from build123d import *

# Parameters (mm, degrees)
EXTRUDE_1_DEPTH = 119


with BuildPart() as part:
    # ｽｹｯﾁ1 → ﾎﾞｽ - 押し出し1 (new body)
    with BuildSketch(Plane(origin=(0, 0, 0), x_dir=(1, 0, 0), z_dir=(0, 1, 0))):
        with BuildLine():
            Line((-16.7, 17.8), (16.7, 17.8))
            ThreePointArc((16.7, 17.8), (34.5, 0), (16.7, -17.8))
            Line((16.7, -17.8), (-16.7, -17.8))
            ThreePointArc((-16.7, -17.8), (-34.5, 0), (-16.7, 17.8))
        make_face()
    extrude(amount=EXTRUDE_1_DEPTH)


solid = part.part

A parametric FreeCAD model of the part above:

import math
import FreeCAD as App
import Part
import Sketcher

V = App.Vector
Q = App.Units.Quantity

doc = App.newDocument("Part")
body = doc.addObject("PartDesign::Body", "Body")

# Sketch on XZ plane
sketch1 = body.newObject("Sketcher::SketchObject", "Sketch")
sketch1.AttachmentSupport = (doc.getObject("XZ_Plane"), [""])
sketch1.MapMode = "FlatFace"
sketch1.addGeometry([
    Part.LineSegment(V(17, -18, 0), V(-17, -18, 0)),
    Part.ArcOfCircle(Part.Circle(V(-17, 0, 0), V(0, 0, 1), 18), math.radians(90), math.radians(270)),
    Part.LineSegment(V(-17, 18, 0), V(17, 18, 0)),
    Part.ArcOfCircle(Part.Circle(V(17, 0, 0), V(0, 0, 1), 18), math.radians(-90), math.radians(90)),
], False)
sketch1.addConstraint([
    Sketcher.Constraint("Tangent", 0, 2, 1, 2),
    Sketcher.Constraint("Tangent", 1, 1, 2, 1),
    Sketcher.Constraint("Tangent", 2, 2, 3, 2),
    Sketcher.Constraint("Tangent", 3, 1, 0, 1),
    Sketcher.Constraint("Horizontal", 0),
    Sketcher.Constraint("Horizontal", 2),
    Sketcher.Constraint("Symmetric", 1, 3, 3, 3, -1, 1),
    Sketcher.Constraint("Radius", 1, Q("17.8 mm")),
    Sketcher.Constraint("DistanceX", 0, 2, 0, 1, Q("33.4 mm")),
])
pad1 = body.newObject("PartDesign::Pad", "Pad")
pad1.Profile = sketch1
pad1.Length = 119
pad1.Reversed = True

doc.recompute()
